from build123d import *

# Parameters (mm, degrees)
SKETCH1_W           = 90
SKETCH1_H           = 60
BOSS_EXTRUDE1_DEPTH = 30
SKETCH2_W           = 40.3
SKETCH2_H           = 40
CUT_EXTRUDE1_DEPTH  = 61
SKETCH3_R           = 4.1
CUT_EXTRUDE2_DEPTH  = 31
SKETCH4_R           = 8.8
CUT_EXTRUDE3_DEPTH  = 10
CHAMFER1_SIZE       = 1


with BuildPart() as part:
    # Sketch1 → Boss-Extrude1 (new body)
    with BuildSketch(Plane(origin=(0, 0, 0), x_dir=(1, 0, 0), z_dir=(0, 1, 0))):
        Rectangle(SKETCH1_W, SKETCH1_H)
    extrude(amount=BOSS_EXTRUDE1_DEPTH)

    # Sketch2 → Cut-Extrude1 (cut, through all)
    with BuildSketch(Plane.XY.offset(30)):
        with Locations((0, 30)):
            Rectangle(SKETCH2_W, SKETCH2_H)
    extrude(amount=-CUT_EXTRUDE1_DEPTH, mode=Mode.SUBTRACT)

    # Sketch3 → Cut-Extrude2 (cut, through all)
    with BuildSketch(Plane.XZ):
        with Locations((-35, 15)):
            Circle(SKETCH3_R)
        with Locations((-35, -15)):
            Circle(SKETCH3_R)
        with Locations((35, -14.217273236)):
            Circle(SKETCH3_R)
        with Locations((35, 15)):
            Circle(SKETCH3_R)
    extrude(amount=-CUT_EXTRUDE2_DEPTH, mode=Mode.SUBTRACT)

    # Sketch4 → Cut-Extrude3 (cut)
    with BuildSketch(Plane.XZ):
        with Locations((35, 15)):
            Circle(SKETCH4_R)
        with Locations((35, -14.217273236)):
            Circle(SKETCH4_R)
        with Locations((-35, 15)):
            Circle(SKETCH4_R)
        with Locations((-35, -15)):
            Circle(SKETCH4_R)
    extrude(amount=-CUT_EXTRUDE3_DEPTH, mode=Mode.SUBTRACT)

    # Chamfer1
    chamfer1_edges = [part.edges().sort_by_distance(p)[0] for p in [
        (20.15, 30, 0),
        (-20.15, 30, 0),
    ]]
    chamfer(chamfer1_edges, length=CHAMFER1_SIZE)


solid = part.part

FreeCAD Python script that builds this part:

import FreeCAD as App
import Part
import Sketcher

V = App.Vector
Q = App.Units.Quantity


def edges_at(feature, points):
    """Names of the edges that pass closest to the given points."""
    edges = feature.Shape.Edges
    near = lambda p: min(range(len(edges)), key=lambda i: edges[i].distToShape(Part.Vertex(*p))[0])
    return sorted({f"Edge{near(p) + 1}" for p in points})

doc = App.newDocument("Part")
params = doc.addObject("Spreadsheet::Sheet", "Params")
for row, (alias, value) in enumerate([
    ("sketch1_width", "90 mm"),
    ("sketch1_height", "60 mm"),
    ("pad1_length", "30 mm"),
    ("sketch2_height", "40 mm"),
    ("sketch2_width", "40.3 mm"),
    ("sketch3_diameter", "8.2 mm"),
    ("sketch4_diameter", "17.6 mm"),
    ("pocket3_length", "10 mm"),
    ("chamfer_size", "1 mm"),
], start=1):
    params.set(f"A{row}", alias)
    params.set(f"B{row}", "=" + value)
    params.setAlias(f"B{row}", alias)

body = doc.addObject("PartDesign::Body", "Body")

sketch1 = doc.addObject("Sketcher::SketchObject", "Sketch")
body.addObject(sketch1)
sketch1.AttachmentSupport = (doc.XZ_Plane, [""])
sketch1.MapMode = "FlatFace"
sketch1.addGeometry([
    Part.LineSegment(V(-45, -30, 0), V(-45, 30, 0)),
    Part.LineSegment(V(-45, 30, 0), V(45, 30, 0)),
    Part.LineSegment(V(45, 30, 0), V(45, -30, 0)),
    Part.LineSegment(V(45, -30, 0), V(-45, -30, 0)),
], False)
sketch1.addConstraint([
    Sketcher.Constraint("Coincident", 0, 2, 1, 1),
    Sketcher.Constraint("Coincident", 1, 2, 2, 1),
    Sketcher.Constraint("Coincident", 2, 2, 3, 1),
    Sketcher.Constraint("Coincident", 3, 2, 0, 1),
    Sketcher.Constraint("Vertical", 0),
    Sketcher.Constraint("Horizontal", 1),
    Sketcher.Constraint("Vertical", 2),
    Sketcher.Constraint("Horizontal", 3),
    Sketcher.Constraint("Symmetric", 0, 2, 2, 2, -1, 1),
    Sketcher.Constraint("DistanceX", 1, 1, 1, 2, Q("90 mm")),
    Sketcher.Constraint("DistanceY", 0, 1, 0, 2, Q("60 mm")),
])
sketch1.setExpression("Constraints[9]", "Params.sketch1_width")
sketch1.setExpression("Constraints[10]", "Params.sketch1_height")
pad1 = doc.addObject("PartDesign::Pad", "Pad")
body.addObject(pad1)
pad1.Profile = sketch1
pad1.setExpression("Length", "Params.pad1_length")
pad1.Reversed = True

sketch2 = doc.addObject("Sketcher::SketchObject", "Sketch001")
body.addObject(sketch2)
sketch2.AttachmentSupport = (doc.XY_Plane, [""])
sketch2.MapMode = "FlatFace"
sketch2.AttachmentOffset = App.Placement(V(0, 0, 30), App.Rotation())
sketch2.addGeometry([
    Part.LineSegment(V(-20, 50, 0), V(-20, 10, 0)),
    Part.LineSegment(V(-20, 10, 0), V(20, 10, 0)),
    Part.LineSegment(V(20, 10, 0), V(20, 50, 0)),
    Part.LineSegment(V(20, 50, 0), V(-20, 50, 0)),
], False)
sketch2.addConstraint([
    Sketcher.Constraint("Coincident", 0, 2, 1, 1),
    Sketcher.Constraint("Coincident", 1, 2, 2, 1),
    Sketcher.Constraint("Coincident", 2, 2, 3, 1),
    Sketcher.Constraint("Coincident", 3, 2, 0, 1),
    Sketcher.Constraint("Vertical", 0),
    Sketcher.Constraint("Horizontal", 1),
    Sketcher.Constraint("Vertical", 2),
    Sketcher.Constraint("Horizontal", 3),
    Sketcher.Constraint("DistanceY", 0, 2, 0, 1, Q("40 mm")),
    Sketcher.Constraint("DistanceX", 1, 1, 1, 2, Q("40.3 mm")),
    Sketcher.Constraint("DistanceY", -1, 1, 0, 2, Q("10 mm")),
    Sketcher.Constraint("DistanceX", 0, 2, -1, 1, Q("20.15 mm")),
])
sketch2.setExpression("Constraints[8]", "Params.sketch2_height")
sketch2.setExpression("Constraints[9]", "Params.sketch2_width")
pocket1 = doc.addObject("PartDesign::Pocket", "Pocket")
body.addObject(pocket1)
pocket1.Profile = sketch2
pocket1.Type = "ThroughAll"

sketch3 = doc.addObject("Sketcher::SketchObject", "Sketch002")
body.addObject(sketch3)
sketch3.AttachmentSupport = (doc.XZ_Plane, [""])
sketch3.MapMode = "FlatFace"
sketch3.addGeometry([
    Part.Circle(V(-35, 15, 0), V(0, 0, 1), 4.1),
    Part.Circle(V(-35, -15, 0), V(0, 0, 1), 4.1),
    Part.Circle(V(35, -14.2, 0), V(0, 0, 1), 4.1),
    Part.Circle(V(35, 15, 0), V(0, 0, 1), 4.1),
], False)
sketch3.addConstraint([
    Sketcher.Constraint("Equal", 0, 1),
    Sketcher.Constraint("Equal", 1, 2),
    Sketcher.Constraint("Equal", 2, 3),
    Sketcher.Constraint("Symmetric", 1, 3, 3, 3, -1, 1),
    Sketcher.Constraint("Symmetric", 0, 3, 3, 3, -2),
    Sketcher.Constraint("Vertical", 2, 3, 3, 3),
    Sketcher.Constraint("Diameter", 0, Q("8.2 mm")),
    Sketcher.Constraint("DistanceX", 0, 3, -1, 1, Q("35 mm")),
    Sketcher.Constraint("DistanceY", -1, 1, 0, 3, Q("15 mm")),
    Sketcher.Constraint("DistanceY", 2, 3, -1, 1, Q("14.217273 mm")),
])
sketch3.setExpression("Constraints[6]", "Params.sketch3_diameter")
pocket2 = doc.addObject("PartDesign::Pocket", "Pocket001")
body.addObject(pocket2)
pocket2.Profile = sketch3
pocket2.Type = "ThroughAll"

sketch4 = doc.addObject("Sketcher::SketchObject", "Sketch003")
body.addObject(sketch4)
sketch4.AttachmentSupport = (doc.XZ_Plane, [""])
sketch4.MapMode = "FlatFace"
sketch4.addGeometry([
    Part.Circle(V(35, 15, 0), V(0, 0, 1), 9),
    Part.Circle(V(35, -14, 0), V(0, 0, 1), 9),
    Part.Circle(V(-35, 15, 0), V(0, 0, 1), 9),
    Part.Circle(V(-35, -15, 0), V(0, 0, 1), 9),
], False)
sketch4.addConstraint([
    Sketcher.Constraint("Equal", 0, 1),
    Sketcher.Constraint("Equal", 1, 2),
    Sketcher.Constraint("Equal", 2, 3),
    Sketcher.Constraint("Symmetric", 0, 3, 3, 3, -1, 1),
    Sketcher.Constraint("Symmetric", 0, 3, 2, 3, -2),
    Sketcher.Constraint("Vertical", 0, 3, 1, 3),
    Sketcher.Constraint("Diameter", 0, Q("17.6 mm")),
    Sketcher.Constraint("DistanceX", -1, 1, 0, 3, Q("35 mm")),
    Sketcher.Constraint("DistanceY", -1, 1, 0, 3, Q("15 mm")),
    Sketcher.Constraint("DistanceY", 1, 3, -1, 1, Q("14.217273 mm")),
])
sketch4.setExpression("Constraints[6]", "Params.sketch4_diameter")
pocket3 = doc.addObject("PartDesign::Pocket", "Pocket002")
body.addObject(pocket3)
pocket3.Profile = sketch4
pocket3.setExpression("Length", "Params.pocket3_length")
doc.recompute()

chamfer = doc.addObject("PartDesign::Chamfer", "Chamfer")
body.addObject(chamfer)
chamfer.Base = (pocket3, edges_at(pocket3, [(20.15, 30, 0), (-20.15, 30, 0)]))
chamfer.setExpression("Size", "Params.chamfer_size")

doc.recompute()
